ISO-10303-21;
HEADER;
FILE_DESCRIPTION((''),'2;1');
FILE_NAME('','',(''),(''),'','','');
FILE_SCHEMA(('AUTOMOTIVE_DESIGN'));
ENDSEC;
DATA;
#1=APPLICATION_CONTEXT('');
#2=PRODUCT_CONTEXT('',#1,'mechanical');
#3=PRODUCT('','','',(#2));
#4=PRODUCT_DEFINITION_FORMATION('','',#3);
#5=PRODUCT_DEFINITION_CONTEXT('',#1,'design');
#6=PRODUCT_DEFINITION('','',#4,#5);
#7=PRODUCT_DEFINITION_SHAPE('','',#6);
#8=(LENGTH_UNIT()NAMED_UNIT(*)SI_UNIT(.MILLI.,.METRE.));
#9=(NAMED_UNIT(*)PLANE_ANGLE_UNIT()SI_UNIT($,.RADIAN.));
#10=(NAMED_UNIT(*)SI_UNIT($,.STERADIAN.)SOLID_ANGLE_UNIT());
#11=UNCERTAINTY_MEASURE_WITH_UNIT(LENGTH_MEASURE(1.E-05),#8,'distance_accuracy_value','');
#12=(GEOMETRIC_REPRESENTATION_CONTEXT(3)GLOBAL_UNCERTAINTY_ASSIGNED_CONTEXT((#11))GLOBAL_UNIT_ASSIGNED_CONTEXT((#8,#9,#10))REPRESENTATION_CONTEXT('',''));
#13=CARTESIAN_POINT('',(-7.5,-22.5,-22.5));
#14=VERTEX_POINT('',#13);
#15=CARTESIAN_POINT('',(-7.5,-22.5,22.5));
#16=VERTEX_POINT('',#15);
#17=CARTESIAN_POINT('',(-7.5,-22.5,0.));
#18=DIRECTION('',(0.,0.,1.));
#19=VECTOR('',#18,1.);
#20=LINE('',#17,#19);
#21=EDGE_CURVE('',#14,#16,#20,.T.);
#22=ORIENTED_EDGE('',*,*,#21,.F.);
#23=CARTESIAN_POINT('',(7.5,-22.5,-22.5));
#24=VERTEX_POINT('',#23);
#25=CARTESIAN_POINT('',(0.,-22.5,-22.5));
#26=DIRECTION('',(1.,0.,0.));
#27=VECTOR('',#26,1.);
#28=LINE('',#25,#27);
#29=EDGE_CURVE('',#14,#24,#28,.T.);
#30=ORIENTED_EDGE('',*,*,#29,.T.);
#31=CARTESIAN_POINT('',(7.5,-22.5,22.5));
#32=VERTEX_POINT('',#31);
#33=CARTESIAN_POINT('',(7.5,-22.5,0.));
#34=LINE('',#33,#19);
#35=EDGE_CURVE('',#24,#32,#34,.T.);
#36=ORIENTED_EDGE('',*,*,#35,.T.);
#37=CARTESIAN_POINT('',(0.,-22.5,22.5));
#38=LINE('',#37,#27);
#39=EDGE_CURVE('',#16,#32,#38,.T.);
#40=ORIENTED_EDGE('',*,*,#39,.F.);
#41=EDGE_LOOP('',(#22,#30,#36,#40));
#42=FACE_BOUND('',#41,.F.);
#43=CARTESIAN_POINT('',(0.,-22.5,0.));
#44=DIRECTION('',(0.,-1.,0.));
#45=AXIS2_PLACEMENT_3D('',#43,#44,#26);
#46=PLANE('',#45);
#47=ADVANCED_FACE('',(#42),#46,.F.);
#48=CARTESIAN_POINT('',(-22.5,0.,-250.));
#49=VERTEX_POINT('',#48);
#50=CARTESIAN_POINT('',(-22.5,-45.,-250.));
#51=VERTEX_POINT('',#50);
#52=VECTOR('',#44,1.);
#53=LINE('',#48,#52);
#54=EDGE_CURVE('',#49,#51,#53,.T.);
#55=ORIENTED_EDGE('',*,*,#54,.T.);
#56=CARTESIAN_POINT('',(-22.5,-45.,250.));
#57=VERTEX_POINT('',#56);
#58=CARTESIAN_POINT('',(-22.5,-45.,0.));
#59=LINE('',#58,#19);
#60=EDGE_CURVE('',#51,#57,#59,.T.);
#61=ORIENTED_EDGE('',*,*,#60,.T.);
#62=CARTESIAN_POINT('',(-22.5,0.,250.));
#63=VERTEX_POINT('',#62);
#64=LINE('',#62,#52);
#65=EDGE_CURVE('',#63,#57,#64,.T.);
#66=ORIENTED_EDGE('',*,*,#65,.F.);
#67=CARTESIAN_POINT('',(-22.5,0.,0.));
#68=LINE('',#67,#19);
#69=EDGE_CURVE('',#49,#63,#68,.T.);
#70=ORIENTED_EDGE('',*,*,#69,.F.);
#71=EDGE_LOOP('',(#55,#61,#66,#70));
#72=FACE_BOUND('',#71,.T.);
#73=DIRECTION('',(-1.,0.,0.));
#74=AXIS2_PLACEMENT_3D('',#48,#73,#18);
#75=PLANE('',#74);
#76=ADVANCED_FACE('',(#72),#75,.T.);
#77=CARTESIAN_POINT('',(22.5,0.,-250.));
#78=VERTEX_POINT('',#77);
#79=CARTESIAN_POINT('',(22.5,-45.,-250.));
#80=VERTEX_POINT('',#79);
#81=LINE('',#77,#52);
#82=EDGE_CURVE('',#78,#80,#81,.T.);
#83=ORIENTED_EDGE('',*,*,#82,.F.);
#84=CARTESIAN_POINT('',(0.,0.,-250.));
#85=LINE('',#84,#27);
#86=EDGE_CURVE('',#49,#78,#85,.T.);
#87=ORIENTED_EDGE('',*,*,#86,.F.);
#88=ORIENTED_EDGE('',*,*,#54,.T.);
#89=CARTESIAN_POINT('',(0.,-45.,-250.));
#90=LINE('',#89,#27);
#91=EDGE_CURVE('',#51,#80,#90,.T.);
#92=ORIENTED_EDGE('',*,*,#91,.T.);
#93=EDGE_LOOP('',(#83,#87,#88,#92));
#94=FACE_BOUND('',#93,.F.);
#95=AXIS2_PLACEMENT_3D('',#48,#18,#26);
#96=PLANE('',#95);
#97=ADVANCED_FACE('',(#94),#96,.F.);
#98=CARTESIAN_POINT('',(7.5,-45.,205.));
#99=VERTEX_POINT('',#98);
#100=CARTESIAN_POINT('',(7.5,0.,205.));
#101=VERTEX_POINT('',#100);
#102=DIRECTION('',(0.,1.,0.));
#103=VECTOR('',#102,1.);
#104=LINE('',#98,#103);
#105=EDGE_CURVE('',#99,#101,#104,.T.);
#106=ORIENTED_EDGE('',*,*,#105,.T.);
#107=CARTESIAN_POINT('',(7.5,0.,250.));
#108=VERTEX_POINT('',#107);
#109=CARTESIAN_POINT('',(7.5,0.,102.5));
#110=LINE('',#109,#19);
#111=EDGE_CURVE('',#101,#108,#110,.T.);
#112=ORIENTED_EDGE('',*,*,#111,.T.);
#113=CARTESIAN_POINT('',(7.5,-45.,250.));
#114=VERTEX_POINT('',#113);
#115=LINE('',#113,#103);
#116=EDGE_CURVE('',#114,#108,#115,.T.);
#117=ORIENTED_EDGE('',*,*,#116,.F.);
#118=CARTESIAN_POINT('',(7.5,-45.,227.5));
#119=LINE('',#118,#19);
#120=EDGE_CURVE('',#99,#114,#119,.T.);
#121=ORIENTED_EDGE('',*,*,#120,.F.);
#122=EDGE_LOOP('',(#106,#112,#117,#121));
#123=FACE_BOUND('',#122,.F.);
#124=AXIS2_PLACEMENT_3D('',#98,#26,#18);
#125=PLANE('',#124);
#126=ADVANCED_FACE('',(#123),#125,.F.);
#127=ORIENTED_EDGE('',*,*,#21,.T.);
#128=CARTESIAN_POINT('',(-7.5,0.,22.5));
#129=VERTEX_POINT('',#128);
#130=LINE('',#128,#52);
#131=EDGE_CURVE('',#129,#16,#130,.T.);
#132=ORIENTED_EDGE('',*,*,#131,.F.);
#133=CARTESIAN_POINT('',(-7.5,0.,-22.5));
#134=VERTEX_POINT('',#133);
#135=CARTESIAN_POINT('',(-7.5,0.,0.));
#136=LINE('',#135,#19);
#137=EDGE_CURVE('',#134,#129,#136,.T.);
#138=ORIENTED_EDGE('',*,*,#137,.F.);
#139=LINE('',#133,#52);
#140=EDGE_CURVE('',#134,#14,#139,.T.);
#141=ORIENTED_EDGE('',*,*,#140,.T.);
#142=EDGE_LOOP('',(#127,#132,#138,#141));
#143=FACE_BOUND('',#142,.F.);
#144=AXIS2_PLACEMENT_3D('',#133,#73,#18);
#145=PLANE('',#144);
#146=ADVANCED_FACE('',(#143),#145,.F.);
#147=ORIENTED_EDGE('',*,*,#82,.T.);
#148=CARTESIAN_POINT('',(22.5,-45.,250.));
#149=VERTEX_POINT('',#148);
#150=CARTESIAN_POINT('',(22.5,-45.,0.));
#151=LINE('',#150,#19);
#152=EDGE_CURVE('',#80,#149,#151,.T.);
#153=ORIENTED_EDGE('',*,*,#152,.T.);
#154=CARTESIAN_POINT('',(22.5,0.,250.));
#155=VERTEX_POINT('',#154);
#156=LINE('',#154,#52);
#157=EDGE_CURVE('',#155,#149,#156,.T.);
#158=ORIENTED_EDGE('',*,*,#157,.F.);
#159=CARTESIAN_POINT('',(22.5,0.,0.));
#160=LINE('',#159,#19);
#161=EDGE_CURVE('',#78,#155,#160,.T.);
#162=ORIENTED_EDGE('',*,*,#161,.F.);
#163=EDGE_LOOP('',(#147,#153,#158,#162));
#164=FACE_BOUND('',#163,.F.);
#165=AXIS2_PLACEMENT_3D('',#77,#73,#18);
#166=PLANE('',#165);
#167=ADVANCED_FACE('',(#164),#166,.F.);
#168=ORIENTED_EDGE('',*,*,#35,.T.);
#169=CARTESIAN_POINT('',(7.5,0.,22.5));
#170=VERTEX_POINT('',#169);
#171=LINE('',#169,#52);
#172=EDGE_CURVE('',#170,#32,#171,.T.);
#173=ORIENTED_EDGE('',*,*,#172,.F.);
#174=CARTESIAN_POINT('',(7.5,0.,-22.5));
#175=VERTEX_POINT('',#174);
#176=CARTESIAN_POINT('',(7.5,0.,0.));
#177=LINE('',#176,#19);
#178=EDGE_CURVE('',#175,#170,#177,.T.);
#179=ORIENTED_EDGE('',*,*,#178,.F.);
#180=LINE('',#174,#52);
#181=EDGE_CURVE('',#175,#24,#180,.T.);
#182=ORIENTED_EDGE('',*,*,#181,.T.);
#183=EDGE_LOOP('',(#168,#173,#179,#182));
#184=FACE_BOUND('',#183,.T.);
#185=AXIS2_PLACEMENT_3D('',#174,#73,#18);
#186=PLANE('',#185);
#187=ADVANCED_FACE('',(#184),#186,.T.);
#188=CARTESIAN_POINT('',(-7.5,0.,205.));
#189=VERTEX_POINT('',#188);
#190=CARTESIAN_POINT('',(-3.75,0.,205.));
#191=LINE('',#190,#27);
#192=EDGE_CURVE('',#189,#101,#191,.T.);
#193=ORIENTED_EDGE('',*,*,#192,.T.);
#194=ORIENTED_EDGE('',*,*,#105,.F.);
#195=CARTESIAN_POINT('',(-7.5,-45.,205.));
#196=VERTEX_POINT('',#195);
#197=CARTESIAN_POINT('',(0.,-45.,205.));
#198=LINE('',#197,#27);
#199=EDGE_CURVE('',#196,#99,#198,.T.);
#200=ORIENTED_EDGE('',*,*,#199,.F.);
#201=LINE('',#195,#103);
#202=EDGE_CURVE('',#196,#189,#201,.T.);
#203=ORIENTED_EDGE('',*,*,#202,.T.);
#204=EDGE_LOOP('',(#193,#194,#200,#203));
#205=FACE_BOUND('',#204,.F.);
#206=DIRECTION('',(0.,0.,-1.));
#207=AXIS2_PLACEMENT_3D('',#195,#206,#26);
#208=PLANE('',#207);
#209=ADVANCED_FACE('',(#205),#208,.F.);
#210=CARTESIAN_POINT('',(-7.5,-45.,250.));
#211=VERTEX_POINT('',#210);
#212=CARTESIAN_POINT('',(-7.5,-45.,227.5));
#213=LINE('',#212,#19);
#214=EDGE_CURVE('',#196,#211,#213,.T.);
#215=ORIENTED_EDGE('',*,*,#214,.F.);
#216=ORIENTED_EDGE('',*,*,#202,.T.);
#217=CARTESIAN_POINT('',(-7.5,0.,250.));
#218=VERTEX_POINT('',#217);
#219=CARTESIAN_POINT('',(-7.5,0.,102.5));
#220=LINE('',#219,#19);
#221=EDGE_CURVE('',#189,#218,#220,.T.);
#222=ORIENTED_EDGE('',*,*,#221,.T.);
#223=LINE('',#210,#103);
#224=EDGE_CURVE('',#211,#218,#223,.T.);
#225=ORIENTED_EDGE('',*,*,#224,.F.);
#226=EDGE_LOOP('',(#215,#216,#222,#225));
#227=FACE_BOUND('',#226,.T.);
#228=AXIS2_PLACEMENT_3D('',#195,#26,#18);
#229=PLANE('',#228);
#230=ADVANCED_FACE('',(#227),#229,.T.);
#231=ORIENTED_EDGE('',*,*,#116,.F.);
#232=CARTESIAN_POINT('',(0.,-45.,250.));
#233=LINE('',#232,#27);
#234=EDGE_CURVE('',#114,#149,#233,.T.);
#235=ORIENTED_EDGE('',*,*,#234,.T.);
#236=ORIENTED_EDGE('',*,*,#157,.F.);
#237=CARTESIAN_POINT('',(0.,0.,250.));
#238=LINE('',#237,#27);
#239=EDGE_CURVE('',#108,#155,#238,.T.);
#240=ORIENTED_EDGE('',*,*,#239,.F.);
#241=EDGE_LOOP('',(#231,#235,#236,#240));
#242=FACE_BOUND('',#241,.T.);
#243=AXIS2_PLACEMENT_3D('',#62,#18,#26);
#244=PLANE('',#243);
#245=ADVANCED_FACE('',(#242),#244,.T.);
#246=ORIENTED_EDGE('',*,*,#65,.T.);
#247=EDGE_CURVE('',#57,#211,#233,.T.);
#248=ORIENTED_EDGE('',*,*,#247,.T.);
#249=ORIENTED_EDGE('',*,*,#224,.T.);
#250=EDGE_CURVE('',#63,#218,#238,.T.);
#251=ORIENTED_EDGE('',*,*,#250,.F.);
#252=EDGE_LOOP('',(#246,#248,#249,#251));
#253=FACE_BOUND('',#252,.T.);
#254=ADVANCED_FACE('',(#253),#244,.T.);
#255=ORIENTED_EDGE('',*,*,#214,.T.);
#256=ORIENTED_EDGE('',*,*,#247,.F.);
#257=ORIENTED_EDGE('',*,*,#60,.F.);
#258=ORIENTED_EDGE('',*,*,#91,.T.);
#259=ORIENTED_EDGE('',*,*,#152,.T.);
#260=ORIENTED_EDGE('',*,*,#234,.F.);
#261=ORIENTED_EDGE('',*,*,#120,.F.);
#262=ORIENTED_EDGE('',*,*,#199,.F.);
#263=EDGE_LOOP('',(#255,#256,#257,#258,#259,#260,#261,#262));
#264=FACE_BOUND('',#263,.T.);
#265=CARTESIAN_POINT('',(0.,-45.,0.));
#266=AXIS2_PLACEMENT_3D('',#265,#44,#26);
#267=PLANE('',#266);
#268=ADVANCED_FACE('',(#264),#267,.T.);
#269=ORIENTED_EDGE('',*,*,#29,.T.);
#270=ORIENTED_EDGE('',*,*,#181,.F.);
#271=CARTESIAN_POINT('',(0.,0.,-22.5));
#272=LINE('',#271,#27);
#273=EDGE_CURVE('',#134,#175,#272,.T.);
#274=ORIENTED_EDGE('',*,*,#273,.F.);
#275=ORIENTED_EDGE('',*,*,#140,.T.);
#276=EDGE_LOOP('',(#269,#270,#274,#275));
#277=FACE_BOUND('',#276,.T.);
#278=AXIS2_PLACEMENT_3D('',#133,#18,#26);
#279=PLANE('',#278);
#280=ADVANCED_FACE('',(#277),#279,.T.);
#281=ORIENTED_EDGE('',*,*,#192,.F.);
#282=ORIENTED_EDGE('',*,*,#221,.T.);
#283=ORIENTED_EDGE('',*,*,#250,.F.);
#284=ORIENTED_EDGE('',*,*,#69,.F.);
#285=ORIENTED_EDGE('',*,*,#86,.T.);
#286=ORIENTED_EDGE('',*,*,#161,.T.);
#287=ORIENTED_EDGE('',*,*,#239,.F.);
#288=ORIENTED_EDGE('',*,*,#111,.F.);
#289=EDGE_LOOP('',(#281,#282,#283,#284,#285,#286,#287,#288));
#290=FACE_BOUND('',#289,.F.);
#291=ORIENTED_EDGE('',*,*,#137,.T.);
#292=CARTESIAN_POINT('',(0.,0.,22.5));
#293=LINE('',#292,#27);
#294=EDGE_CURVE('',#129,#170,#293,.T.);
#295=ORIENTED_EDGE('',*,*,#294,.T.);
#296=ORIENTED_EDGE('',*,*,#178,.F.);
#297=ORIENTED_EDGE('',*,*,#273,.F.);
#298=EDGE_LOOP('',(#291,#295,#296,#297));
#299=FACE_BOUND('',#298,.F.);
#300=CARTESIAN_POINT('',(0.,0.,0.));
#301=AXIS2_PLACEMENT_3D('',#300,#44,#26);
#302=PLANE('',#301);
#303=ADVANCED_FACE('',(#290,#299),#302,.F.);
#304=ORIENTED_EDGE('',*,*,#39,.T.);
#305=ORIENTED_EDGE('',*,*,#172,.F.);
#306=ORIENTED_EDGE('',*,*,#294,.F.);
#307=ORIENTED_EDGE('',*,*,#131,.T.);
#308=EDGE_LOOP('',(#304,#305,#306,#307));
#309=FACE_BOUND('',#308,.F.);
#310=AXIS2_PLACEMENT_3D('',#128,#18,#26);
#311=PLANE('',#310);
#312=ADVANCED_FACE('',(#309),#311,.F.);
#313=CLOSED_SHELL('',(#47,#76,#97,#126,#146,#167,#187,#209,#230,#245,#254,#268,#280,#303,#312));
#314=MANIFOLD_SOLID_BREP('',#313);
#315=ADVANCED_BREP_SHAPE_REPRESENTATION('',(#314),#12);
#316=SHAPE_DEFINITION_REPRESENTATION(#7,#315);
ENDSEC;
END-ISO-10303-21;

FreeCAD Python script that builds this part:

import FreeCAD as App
import Part
import Sketcher
from FreeCAD import Vector
Q = App.Units.Quantity

doc = App.newDocument("Part")
body = doc.addObject("PartDesign::Body", "Body")

# Sketch on XZ plane
sketch1 = body.newObject("Sketcher::SketchObject", "Sketch")
sketch1.AttachmentSupport = (doc.getObject("XZ_Plane"), [""])
sketch1.MapMode = "FlatFace"
sketch1.addGeometry([
    Part.LineSegment(Vector(-22, 250, 0), Vector(-22, -250, 0)),
    Part.LineSegment(Vector(-22, -250, 0), Vector(22, -250, 0)),
    Part.LineSegment(Vector(22, -250, 0), Vector(22, 250, 0)),
    Part.LineSegment(Vector(22, 250, 0), Vector(-22, 250, 0)),
], False)
sketch1.addConstraint([
    Sketcher.Constraint("Coincident", 0, 2, 1, 1),
    Sketcher.Constraint("Coincident", 1, 2, 2, 1),
    Sketcher.Constraint("Coincident", 2, 2, 3, 1),
    Sketcher.Constraint("Coincident", 3, 2, 0, 1),
    Sketcher.Constraint("Vertical", 0),
    Sketcher.Constraint("Horizontal", 1),
    Sketcher.Constraint("Vertical", 2),
    Sketcher.Constraint("Horizontal", 3),
    Sketcher.Constraint("Symmetric", 0, 2, 2, 2, -1, 1),
    Sketcher.Constraint("DistanceX", 1, 1, 1, 2, Q("45 mm")),
    Sketcher.Constraint("DistanceY", 0, 2, 0, 1, Q("500 mm")),
])
pad1 = body.newObject("PartDesign::Pad", "Pad")
pad1.Profile = sketch1
pad1.Length = 45

# Sketch on XZ plane
sketch2 = body.newObject("Sketcher::SketchObject", "Sketch001")
sketch2.AttachmentSupport = (doc.getObject("XZ_Plane"), [""])
sketch2.MapMode = "FlatFace"
sketch2.AttachmentOffset = App.Placement(Vector(0, 0, 45), App.Rotation())
sketch2.addGeometry([
    Part.LineSegment(Vector(-8, 250, 0), Vector(-8, 205, 0)),
    Part.LineSegment(Vector(-8, 205, 0), Vector(8, 205, 0)),
    Part.LineSegment(Vector(8, 205, 0), Vector(8, 250, 0)),
    Part.LineSegment(Vector(8, 250, 0), Vector(-8, 250, 0)),
], False)
sketch2.addConstraint([
    Sketcher.Constraint("Coincident", 0, 2, 1, 1),
    Sketcher.Constraint("Coincident", 1, 2, 2, 1),
    Sketcher.Constraint("Coincident", 2, 2, 3, 1),
    Sketcher.Constraint("Coincident", 3, 2, 0, 1),
    Sketcher.Constraint("Vertical", 0),
    Sketcher.Constraint("Horizontal", 1),
    Sketcher.Constraint("Vertical", 2),
    Sketcher.Constraint("Horizontal", 3),
    Sketcher.Constraint("DistanceX", 1, 1, 1, 2, Q("15 mm")),
    Sketcher.Constraint("DistanceY", 0, 2, 0, 1, Q("45 mm")),
    Sketcher.Constraint("DistanceY", -1, 1, 0, 2, Q("205 mm")),
    Sketcher.Constraint("DistanceX", 0, 2, -1, 1, Q("7.5 mm")),
])
pocket1 = body.newObject("PartDesign::Pocket", "Pocket")
pocket1.Profile = sketch2
pocket1.Length = 94

# Sketch on XZ plane
sketch3 = body.newObject("Sketcher::SketchObject", "Sketch002")
sketch3.AttachmentSupport = (doc.getObject("XZ_Plane"), [""])
sketch3.MapMode = "FlatFace"
sketch3.addGeometry([
    Part.LineSegment(Vector(-8, 22, 0), Vector(-8, -22, 0)),
    Part.LineSegment(Vector(-8, -22, 0), Vector(8, -22, 0)),
    Part.LineSegment(Vector(8, -22, 0), Vector(8, 22, 0)),
    Part.LineSegment(Vector(8, 22, 0), Vector(-8, 22, 0)),
], False)
sketch3.addConstraint([
    Sketcher.Constraint("Coincident", 0, 2, 1, 1),
    Sketcher.Constraint("Coincident", 1, 2, 2, 1),
    Sketcher.Constraint("Coincident", 2, 2, 3, 1),
    Sketcher.Constraint("Coincident", 3, 2, 0, 1),
    Sketcher.Constraint("Vertical", 0),
    Sketcher.Constraint("Horizontal", 1),
    Sketcher.Constraint("Vertical", 2),
    Sketcher.Constraint("Horizontal", 3),
    Sketcher.Constraint("Symmetric", 0, 2, 2, 2, -1, 1),
    Sketcher.Constraint("DistanceX", 1, 1, 1, 2, Q("15 mm")),
    Sketcher.Constraint("DistanceY", 0, 2, 0, 1, Q("45 mm")),
])
pocket2 = body.newObject("PartDesign::Pocket", "Pocket001")
pocket2.Profile = sketch3
pocket2.Length = 22.5
pocket2.Reversed = True

doc.recompute()
